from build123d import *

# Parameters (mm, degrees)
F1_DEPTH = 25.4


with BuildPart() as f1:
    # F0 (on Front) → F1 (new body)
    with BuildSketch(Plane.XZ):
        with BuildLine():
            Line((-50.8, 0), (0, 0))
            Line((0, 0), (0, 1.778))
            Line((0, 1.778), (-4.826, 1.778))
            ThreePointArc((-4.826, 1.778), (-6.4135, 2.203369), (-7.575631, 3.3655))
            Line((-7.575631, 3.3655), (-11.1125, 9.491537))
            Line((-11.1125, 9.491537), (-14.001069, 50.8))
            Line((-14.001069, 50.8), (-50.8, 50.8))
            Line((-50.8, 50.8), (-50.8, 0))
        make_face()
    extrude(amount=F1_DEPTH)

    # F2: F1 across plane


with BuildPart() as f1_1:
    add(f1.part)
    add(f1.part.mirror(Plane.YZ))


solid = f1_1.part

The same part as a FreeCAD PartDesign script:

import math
import FreeCAD as App
import Part
import Sketcher

V = App.Vector
Q = App.Units.Quantity

doc = App.newDocument("Part")
body = doc.addObject("PartDesign::Body", "Body")

# Sketch on XZ plane
sketch1 = body.newObject("Sketcher::SketchObject", "Sketch")
sketch1.AttachmentSupport = (doc.getObject("XZ_Plane"), [""])
sketch1.MapMode = "FlatFace"
sketch1.addGeometry(Part.LineSegment(V(-50.8, 0, 0), V(0, 0, 0)), False)
sketch1.addGeometry(Part.LineSegment(V(0, 0, 0), V(0, 1.8, 0)), False)
sketch1.addGeometry(Part.LineSegment(V(0, 1.8, 0), V(-4.8, 1.8, 0)), False)
sketch1.addGeometry(Part.ArcOfCircle(Part.Circle(V(-4.8, 5, 0), V(0, 0, 1), 3.2), math.radians(-150), math.radians(-90)), False)
sketch1.addGeometry(Part.LineSegment(V(-7.6, 3.4, 0), V(-11.1, 9.5, 0)), False)
sketch1.addGeometry(Part.LineSegment(V(-11.1, 9.5, 0), V(-14, 50.8, 0)), False)
sketch1.addGeometry(Part.LineSegment(V(-14, 50.8, 0), V(-50.8, 50.8, 0)), False)
sketch1.addGeometry(Part.LineSegment(V(-50.8, 50.8, 0), V(-50.8, 0, 0)), False)
sketch1.addConstraint(Sketcher.Constraint("Coincident", 0, 2, 1, 1))
sketch1.addConstraint(Sketcher.Constraint("Coincident", 1, 2, 2, 1))
sketch1.addConstraint(Sketcher.Constraint("Tangent", 2, 2, 3, 2))
sketch1.addConstraint(Sketcher.Constraint("Tangent", 3, 1, 4, 1))
sketch1.addConstraint(Sketcher.Constraint("Coincident", 4, 2, 5, 1))
sketch1.addConstraint(Sketcher.Constraint("Coincident", 5, 2, 6, 1))
sketch1.addConstraint(Sketcher.Constraint("Coincident", 6, 2, 7, 1))
sketch1.addConstraint(Sketcher.Constraint("Coincident", 7, 2, 0, 1))
sketch1.addConstraint(Sketcher.Constraint("Horizontal", 0))
sketch1.addConstraint(Sketcher.Constraint("Vertical", 1))
sketch1.addConstraint(Sketcher.Constraint("Horizontal", 2))
sketch1.addConstraint(Sketcher.Constraint("Horizontal", 6))
sketch1.addConstraint(Sketcher.Constraint("Vertical", 7))
sketch1.addConstraint(Sketcher.Constraint("Coincident", 0, 2, -1, 1))
sketch1.addConstraint(Sketcher.Constraint("Equal", 0, 7))
sketch1.addConstraint(Sketcher.Constraint("DistanceX", 0, 1, 0, 2, Q("2 in")))
sketch1.addConstraint(Sketcher.Constraint("Angle", 4, Q("119.999999 deg")))
sketch1.addConstraint(Sketcher.Constraint("Angle", 5, Q("94 deg")))
sketch1.addConstraint(Sketcher.Constraint("Radius", 3, Q("0.125 in")))
sketch1.addConstraint(Sketcher.Constraint("DistanceX", 2, 2, 2, 1, Q("0.19 in")))
sketch1.addConstraint(Sketcher.Constraint("DistanceY", 1, 1, 1, 2, Q("0.07 in")))
sketch1.addConstraint(Sketcher.Constraint("DistanceX", 4, 2, -1, 1, Q("0.4375 in")))
pad1 = body.newObject("PartDesign::Pad", "Pad")
pad1.Profile = sketch1
pad1.Length = Q("1 in")
body2 = doc.addObject("PartDesign::Body", "Body001")
doc.recompute()

body2.BaseFeature = body
doc.recompute()

mirroring = doc.addObject("Part::Mirroring", "Mirroring")
mirroring.Source = body
mirroring.Base = V(0, 0, 0)
mirroring.Normal = V(1, 0, 0)
body3 = doc.addObject("PartDesign::Body", "Body002")
body3.BaseFeature = mirroring
boolean = body2.newObject("PartDesign::Boolean", "Boolean")
boolean.Type = "Fuse"
boolean.addObjects([body3])
doc.recompute()
mirroring.Visibility = False

doc.recompute()
